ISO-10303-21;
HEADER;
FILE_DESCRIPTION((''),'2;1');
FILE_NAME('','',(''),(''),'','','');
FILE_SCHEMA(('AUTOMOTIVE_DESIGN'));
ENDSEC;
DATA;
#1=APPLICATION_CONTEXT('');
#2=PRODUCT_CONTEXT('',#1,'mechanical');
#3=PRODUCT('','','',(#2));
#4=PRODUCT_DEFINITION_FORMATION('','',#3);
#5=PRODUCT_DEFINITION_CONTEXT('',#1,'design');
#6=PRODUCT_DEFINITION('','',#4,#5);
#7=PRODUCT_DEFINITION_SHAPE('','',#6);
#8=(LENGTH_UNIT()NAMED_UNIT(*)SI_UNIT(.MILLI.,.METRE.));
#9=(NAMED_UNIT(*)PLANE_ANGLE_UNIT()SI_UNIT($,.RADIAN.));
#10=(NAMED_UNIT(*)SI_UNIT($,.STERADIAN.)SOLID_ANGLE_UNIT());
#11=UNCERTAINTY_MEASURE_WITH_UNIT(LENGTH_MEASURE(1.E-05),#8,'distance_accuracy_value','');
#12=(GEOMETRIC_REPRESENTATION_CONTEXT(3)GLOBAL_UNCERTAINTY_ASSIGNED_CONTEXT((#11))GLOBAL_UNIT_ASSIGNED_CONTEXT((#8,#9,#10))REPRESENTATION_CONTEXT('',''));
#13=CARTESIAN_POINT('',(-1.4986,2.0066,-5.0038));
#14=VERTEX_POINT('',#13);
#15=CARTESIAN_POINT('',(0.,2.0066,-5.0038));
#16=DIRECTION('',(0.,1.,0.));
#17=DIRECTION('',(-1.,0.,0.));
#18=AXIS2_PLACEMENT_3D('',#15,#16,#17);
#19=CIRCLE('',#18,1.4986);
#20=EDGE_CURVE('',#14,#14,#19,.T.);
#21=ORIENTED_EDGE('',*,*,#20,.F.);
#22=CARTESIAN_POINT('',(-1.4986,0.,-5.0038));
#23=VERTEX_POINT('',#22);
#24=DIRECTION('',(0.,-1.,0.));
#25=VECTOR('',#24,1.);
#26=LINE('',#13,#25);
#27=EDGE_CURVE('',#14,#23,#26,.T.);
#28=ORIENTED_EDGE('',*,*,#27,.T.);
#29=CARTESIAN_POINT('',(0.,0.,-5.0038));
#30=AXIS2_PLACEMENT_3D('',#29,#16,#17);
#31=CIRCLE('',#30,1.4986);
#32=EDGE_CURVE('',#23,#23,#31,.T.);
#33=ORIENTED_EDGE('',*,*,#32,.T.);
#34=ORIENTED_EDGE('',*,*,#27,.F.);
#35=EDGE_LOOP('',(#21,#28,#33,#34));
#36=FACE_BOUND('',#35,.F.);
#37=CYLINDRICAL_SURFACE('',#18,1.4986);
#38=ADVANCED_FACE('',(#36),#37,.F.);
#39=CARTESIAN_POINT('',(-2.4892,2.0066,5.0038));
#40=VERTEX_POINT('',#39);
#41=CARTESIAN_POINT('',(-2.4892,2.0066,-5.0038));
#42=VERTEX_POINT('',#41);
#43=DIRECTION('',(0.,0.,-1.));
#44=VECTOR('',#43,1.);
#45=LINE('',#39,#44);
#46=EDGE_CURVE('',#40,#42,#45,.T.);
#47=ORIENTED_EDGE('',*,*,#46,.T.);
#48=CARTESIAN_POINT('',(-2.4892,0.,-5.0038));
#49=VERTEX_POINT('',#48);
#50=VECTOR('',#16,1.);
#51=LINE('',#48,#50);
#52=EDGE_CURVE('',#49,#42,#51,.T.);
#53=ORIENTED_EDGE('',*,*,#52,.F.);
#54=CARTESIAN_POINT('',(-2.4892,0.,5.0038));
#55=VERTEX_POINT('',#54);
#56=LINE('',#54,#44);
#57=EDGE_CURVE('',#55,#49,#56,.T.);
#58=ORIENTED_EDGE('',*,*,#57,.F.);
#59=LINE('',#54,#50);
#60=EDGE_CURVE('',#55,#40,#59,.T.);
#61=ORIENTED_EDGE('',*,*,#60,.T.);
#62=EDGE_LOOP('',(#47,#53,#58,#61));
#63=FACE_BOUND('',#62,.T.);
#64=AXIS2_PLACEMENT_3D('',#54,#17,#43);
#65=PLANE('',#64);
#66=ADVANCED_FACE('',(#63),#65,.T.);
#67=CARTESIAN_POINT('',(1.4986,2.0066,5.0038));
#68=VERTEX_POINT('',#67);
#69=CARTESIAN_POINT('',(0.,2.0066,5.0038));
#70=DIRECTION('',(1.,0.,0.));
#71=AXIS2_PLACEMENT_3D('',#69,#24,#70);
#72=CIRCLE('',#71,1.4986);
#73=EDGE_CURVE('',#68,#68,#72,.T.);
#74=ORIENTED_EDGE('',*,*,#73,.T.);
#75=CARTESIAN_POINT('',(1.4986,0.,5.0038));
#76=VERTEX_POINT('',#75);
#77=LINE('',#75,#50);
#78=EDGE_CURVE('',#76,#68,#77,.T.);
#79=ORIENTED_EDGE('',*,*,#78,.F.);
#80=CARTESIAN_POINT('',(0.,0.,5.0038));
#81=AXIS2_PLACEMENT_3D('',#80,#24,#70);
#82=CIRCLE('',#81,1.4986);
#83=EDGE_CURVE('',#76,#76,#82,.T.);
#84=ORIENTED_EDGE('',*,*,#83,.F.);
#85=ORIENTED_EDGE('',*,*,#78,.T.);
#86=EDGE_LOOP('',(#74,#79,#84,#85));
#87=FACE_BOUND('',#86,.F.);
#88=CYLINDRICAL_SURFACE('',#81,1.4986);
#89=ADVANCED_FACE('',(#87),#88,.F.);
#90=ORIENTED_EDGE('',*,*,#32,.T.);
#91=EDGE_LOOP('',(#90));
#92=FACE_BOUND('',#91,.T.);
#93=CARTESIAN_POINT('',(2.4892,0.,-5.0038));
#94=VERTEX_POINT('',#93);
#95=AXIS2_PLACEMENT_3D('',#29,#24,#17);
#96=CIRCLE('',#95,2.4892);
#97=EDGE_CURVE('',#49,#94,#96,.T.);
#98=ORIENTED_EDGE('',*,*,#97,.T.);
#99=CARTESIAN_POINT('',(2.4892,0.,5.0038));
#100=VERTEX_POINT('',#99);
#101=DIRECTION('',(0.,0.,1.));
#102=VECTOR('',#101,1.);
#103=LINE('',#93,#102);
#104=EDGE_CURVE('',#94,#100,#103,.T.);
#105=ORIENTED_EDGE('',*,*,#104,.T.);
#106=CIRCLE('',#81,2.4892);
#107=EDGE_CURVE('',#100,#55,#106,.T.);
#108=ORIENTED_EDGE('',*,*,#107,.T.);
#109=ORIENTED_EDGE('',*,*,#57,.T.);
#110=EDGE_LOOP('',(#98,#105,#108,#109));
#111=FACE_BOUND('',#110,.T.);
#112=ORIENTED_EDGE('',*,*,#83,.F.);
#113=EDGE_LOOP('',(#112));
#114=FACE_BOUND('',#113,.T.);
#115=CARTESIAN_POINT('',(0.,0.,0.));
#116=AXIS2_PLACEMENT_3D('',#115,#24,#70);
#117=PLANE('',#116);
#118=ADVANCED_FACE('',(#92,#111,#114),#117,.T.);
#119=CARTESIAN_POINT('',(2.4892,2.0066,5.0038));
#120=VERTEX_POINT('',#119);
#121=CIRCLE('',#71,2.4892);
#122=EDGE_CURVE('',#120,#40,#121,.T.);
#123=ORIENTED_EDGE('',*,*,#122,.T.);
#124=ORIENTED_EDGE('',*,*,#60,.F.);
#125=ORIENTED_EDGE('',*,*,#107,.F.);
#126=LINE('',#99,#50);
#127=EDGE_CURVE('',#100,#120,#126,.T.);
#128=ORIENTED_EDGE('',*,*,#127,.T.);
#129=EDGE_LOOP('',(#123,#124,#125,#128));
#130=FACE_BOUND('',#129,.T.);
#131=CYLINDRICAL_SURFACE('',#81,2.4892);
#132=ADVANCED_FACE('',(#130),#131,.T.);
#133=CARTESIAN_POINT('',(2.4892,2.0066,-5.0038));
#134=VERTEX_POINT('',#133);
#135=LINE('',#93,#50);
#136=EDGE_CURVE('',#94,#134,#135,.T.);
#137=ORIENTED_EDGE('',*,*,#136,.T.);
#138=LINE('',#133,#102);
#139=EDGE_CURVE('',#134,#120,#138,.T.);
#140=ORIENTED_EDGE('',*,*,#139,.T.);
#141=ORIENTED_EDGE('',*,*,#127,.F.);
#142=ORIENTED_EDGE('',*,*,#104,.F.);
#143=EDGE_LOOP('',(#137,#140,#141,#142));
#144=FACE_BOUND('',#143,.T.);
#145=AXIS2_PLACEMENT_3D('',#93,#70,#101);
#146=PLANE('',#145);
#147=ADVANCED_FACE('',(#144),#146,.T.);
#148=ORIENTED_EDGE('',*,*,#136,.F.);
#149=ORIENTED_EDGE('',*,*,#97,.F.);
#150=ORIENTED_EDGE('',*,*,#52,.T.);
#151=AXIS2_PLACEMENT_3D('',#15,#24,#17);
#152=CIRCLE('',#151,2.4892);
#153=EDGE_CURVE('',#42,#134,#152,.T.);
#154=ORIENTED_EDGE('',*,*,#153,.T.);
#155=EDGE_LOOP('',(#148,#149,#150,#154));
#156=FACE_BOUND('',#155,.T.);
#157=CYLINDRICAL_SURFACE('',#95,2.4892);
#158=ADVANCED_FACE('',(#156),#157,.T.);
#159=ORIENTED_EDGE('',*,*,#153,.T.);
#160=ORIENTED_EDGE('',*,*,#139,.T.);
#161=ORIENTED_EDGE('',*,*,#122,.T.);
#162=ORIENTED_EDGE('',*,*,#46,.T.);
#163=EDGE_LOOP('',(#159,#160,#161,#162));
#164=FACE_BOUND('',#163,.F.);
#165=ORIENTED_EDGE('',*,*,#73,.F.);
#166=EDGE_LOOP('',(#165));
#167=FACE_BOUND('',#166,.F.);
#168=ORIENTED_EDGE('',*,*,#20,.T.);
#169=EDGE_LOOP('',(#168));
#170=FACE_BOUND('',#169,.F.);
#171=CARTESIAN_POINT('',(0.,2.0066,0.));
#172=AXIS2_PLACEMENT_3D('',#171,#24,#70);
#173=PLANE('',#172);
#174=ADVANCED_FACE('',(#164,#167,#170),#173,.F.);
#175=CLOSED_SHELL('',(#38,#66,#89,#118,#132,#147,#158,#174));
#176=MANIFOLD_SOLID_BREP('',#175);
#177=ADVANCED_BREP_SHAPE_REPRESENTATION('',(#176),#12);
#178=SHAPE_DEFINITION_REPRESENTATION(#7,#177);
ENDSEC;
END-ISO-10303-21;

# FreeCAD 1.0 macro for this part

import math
import FreeCAD as App
import Part
import Sketcher
Q = App.Units.Quantity

doc = App.newDocument("Part")
body = doc.addObject("PartDesign::Body", "Body")

# Sketch on XZ plane
sketch1 = doc.addObject("Sketcher::SketchObject", "Sketch")
body.addObject(sketch1)
sketch1.AttachmentSupport = (doc.XZ_Plane, [""])
sketch1.MapMode = "FlatFace"
sketch1.addGeometry(Part.LineSegment(App.Vector(2.5, -5, 0), App.Vector(2.5, 5, 0)), False)
sketch1.addGeometry(Part.ArcOfCircle(Part.Circle(App.Vector(0, 5, 0), App.Vector(0, 0, 1), 2.5), math.radians(0), math.radians(180)), False)
sketch1.addGeometry(Part.LineSegment(App.Vector(-2.5, 5, 0), App.Vector(-2.5, -5, 0)), False)
sketch1.addGeometry(Part.ArcOfCircle(Part.Circle(App.Vector(0, -5, 0), App.Vector(0, 0, 1), 2.5), math.radians(180), math.radians(360)), False)
sketch1.addGeometry(Part.Circle(App.Vector(0, 5, 0), App.Vector(0, 0, 1), 1.5), False)
sketch1.addConstraint(Sketcher.Constraint("Tangent", 0, 2, 1, 1))
sketch1.addConstraint(Sketcher.Constraint("Tangent", 1, 2, 2, 1))
sketch1.addConstraint(Sketcher.Constraint("Tangent", 2, 2, 3, 1))
sketch1.addConstraint(Sketcher.Constraint("Tangent", 3, 2, 0, 1))
sketch1.addConstraint(Sketcher.Constraint("Vertical", 0))
sketch1.addConstraint(Sketcher.Constraint("Vertical", 2))
sketch1.addConstraint(Sketcher.Constraint("Coincident", 4, 3, 1, 3))
sketch1.addConstraint(Sketcher.Constraint("Symmetric", 1, 3, 3, 3, -1, 1))
sketch1.addConstraint(Sketcher.Constraint("Diameter", 4, Q("0.118 in")))
sketch1.addConstraint(Sketcher.Constraint("Radius", 1, Q("0.098 in")))
sketch1.addConstraint(Sketcher.Constraint("DistanceY", 0, 1, 0, 2, Q("0.394 in")))
pad1 = doc.addObject("PartDesign::Pad", "Pad")
body.addObject(pad1)
pad1.Profile = sketch1
pad1.Length = Q("0.079 in")
pad1.Reversed = True

# Sketch on XZ plane
sketch2 = doc.addObject("Sketcher::SketchObject", "Sketch001")
body.addObject(sketch2)
sketch2.AttachmentSupport = (doc.XZ_Plane, [""])
sketch2.MapMode = "FlatFace"
sketch2.AttachmentOffset = App.Placement(App.Vector(0, 0, -0.079 * 25.4), App.Rotation())
sketch2.addGeometry(Part.Circle(App.Vector(0, -5, 0), App.Vector(0, 0, 1), 1.5), False)
sketch2.addConstraint(Sketcher.Constraint("PointOnObject", 0, 3, -2))
sketch2.addConstraint(Sketcher.Constraint("Diameter", 0, Q("0.118 in")))
sketch2.addConstraint(Sketcher.Constraint("DistanceY", 0, 3, -1, 1, Q("0.197 in")))
pocket1 = doc.addObject("PartDesign::Pocket", "Pocket")
body.addObject(pocket1)
pocket1.Profile = sketch2
pocket1.Length = Q("1 in")
pocket1.Reversed = True

doc.recompute()
